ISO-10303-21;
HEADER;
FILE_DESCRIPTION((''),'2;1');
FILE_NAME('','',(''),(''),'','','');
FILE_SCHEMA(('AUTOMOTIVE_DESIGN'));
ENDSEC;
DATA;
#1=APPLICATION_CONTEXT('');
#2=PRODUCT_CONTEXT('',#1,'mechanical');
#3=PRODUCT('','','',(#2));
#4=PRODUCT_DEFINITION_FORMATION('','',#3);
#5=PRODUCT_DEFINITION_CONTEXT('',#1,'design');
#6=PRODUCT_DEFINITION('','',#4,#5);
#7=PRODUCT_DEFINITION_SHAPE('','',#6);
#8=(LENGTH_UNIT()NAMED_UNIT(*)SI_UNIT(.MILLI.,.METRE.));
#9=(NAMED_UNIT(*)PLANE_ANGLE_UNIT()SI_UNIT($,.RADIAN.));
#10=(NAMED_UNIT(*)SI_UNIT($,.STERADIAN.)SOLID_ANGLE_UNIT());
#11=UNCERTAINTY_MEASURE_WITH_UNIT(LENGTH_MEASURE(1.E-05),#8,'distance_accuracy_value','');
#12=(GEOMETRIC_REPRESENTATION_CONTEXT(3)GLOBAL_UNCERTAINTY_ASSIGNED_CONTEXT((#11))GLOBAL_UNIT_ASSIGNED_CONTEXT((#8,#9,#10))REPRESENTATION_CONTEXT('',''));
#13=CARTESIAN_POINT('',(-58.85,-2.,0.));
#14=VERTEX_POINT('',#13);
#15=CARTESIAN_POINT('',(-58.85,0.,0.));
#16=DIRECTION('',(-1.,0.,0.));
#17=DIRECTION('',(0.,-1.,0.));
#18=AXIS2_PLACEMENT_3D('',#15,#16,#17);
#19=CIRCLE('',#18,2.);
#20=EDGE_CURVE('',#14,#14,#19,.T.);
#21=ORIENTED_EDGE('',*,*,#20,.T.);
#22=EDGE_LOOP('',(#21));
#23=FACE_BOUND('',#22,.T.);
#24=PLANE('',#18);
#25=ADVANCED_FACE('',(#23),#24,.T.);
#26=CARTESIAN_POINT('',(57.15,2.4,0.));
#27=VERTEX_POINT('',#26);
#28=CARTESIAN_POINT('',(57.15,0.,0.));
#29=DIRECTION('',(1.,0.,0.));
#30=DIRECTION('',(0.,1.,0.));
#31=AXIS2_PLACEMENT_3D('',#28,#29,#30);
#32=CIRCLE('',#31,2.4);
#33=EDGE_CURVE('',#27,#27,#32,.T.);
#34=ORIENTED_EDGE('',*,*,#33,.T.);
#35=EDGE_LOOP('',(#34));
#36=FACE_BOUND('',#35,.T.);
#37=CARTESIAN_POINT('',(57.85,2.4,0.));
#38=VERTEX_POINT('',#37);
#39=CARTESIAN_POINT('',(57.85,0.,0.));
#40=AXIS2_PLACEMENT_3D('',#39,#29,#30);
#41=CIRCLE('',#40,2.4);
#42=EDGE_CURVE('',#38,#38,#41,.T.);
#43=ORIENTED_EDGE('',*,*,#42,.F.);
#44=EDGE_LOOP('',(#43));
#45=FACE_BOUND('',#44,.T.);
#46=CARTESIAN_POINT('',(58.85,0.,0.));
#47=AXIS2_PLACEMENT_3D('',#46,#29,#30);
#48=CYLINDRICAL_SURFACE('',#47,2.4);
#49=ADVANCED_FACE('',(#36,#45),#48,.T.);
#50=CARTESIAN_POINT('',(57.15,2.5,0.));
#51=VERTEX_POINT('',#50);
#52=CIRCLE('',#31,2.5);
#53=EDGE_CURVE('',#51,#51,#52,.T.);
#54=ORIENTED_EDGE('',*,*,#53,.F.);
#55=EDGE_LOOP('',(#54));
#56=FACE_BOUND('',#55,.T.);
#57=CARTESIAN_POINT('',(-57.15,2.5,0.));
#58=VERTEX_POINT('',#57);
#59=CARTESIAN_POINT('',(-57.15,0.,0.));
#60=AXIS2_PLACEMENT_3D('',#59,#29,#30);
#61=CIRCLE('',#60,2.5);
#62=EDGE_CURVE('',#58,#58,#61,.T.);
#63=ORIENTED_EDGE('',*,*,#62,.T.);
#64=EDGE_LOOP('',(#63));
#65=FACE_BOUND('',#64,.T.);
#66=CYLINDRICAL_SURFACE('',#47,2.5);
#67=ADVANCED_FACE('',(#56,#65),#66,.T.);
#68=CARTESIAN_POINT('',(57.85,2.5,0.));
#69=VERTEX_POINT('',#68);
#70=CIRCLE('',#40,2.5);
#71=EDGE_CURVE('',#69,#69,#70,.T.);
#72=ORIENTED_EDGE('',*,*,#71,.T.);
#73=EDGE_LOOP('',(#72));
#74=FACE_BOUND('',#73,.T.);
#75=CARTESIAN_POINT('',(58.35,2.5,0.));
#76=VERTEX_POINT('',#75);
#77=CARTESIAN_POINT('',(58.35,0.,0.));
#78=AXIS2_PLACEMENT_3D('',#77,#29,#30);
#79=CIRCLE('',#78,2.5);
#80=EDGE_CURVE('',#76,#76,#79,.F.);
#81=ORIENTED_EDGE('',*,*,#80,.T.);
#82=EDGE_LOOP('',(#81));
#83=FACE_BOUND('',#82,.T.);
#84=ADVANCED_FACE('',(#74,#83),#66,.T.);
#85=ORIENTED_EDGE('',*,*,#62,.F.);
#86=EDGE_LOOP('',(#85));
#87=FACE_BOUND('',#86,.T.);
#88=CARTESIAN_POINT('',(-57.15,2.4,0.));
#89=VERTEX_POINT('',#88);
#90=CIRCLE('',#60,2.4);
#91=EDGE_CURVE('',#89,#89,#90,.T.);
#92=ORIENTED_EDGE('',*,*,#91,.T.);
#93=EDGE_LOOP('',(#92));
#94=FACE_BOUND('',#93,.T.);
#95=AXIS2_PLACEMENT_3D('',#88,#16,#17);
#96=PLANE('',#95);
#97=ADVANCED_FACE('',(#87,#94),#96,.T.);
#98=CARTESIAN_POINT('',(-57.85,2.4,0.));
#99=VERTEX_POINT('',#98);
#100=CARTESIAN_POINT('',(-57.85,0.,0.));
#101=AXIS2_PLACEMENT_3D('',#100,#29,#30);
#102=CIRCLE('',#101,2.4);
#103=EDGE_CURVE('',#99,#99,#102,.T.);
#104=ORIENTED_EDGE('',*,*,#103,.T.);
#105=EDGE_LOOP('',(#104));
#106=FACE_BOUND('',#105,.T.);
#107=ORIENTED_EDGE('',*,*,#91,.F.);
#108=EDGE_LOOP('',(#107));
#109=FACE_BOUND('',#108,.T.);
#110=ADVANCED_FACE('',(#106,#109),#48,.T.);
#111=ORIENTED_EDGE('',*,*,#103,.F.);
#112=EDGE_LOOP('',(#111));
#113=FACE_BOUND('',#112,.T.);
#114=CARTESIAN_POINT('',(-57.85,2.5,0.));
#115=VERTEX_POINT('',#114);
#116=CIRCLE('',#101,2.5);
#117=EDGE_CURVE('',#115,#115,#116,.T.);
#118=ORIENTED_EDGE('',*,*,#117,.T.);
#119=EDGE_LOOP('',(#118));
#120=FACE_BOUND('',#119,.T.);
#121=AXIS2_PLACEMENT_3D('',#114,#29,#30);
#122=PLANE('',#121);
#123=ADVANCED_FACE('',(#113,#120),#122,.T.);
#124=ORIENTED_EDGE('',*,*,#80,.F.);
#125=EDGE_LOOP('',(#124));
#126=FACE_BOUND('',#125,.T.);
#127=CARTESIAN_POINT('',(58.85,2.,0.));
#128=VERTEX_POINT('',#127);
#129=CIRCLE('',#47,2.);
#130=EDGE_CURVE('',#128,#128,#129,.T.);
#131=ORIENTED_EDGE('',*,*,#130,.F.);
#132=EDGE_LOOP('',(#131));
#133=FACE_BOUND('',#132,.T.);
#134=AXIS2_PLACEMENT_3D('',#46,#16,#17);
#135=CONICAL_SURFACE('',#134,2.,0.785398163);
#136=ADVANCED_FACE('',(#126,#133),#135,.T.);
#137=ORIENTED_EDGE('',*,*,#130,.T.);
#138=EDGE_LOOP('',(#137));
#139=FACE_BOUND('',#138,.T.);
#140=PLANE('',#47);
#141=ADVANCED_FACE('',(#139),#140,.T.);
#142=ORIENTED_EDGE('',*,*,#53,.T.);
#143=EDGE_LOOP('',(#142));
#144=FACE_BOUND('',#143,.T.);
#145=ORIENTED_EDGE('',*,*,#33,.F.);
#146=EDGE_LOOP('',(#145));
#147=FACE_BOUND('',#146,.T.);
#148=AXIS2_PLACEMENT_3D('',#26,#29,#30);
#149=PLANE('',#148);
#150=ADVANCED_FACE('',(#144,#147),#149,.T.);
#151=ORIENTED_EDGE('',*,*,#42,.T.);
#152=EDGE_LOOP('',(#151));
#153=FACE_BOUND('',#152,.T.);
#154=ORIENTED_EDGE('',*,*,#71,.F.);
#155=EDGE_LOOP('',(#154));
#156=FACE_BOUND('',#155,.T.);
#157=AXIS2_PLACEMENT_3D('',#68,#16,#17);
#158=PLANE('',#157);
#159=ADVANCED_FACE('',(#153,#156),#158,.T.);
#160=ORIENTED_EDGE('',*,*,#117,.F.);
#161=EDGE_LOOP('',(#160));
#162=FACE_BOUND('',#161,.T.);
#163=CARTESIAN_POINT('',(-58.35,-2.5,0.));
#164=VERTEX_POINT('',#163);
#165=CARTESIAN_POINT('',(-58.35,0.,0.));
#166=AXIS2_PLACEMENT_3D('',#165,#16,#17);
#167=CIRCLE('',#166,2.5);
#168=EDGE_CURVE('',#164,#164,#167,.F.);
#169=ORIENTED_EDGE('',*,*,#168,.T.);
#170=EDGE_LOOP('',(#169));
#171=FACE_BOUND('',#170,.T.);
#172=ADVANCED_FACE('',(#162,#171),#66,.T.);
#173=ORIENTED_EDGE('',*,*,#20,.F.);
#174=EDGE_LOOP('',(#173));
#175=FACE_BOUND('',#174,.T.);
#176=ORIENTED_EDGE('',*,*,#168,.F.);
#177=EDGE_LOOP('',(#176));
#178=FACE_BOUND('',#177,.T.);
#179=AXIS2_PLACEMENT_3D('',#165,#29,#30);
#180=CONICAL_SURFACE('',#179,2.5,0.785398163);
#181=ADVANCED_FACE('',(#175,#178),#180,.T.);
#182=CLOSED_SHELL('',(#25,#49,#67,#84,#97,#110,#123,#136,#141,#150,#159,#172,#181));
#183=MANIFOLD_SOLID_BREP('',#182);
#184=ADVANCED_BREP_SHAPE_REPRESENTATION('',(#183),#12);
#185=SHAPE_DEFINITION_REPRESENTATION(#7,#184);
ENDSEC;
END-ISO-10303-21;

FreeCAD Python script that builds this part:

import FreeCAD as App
import Part
import Sketcher


def edges_at(feature, points):
    """Names of the edges that pass closest to the given points."""
    edges = feature.Shape.Edges
    near = lambda p: min(range(len(edges)), key=lambda i: edges[i].distToShape(Part.Vertex(*p))[0])
    return sorted({f"Edge{near(p) + 1}" for p in points})

doc = App.newDocument("Part")
body = doc.addObject("PartDesign::Body", "Body")

# Sketch on XY plane
sketch1 = body.newObject("Sketcher::SketchObject", "Sketch")
sketch1.AttachmentSupport = (doc.getObject("XY_Plane"), [""])
sketch1.MapMode = "FlatFace"
sketch1.addGeometry(Part.LineSegment(App.Vector(58.85, 0, 0), App.Vector(58.85, 2.5, 0)), False)
sketch1.addGeometry(Part.LineSegment(App.Vector(58.85, 2.5, 0), App.Vector(57.85, 2.5, 0)), False)
sketch1.addGeometry(Part.LineSegment(App.Vector(57.85, 2.5, 0), App.Vector(57.85, 2.4, 0)), False)
sketch1.addGeometry(Part.LineSegment(App.Vector(57.85, 2.4, 0), App.Vector(57.15, 2.4, 0)), False)
sketch1.addGeometry(Part.LineSegment(App.Vector(57.15, 2.4, 0), App.Vector(57.15, 2.5, 0)), False)
sketch1.addGeometry(Part.LineSegment(App.Vector(57.15, 2.5, 0), App.Vector(-57.15, 2.5, 0)), False)
sketch1.addGeometry(Part.LineSegment(App.Vector(-57.15, 2.5, 0), App.Vector(-57.15, 2.4, 0)), False)
sketch1.addGeometry(Part.LineSegment(App.Vector(-57.15, 2.4, 0), App.Vector(-57.85, 2.4, 0)), False)
sketch1.addGeometry(Part.LineSegment(App.Vector(-57.85, 2.4, 0), App.Vector(-57.85, 2.5, 0)), False)
sketch1.addGeometry(Part.LineSegment(App.Vector(-57.85, 2.5, 0), App.Vector(-58.85, 2.5, 0)), False)
sketch1.addGeometry(Part.LineSegment(App.Vector(-58.85, 2.5, 0), App.Vector(-58.85, 0, 0)), False)
sketch1.addGeometry(Part.LineSegment(App.Vector(-58.85, 0, 0), App.Vector(58.85, 0, 0)), False)
sketch1.addConstraint(Sketcher.Constraint("Coincident", 0, 2, 1, 1))
sketch1.addConstraint(Sketcher.Constraint("Coincident", 1, 2, 2, 1))
sketch1.addConstraint(Sketcher.Constraint("Coincident", 2, 2, 3, 1))
sketch1.addConstraint(Sketcher.Constraint("Coincident", 3, 2, 4, 1))
sketch1.addConstraint(Sketcher.Constraint("Coincident", 4, 2, 5, 1))
sketch1.addConstraint(Sketcher.Constraint("Coincident", 5, 2, 6, 1))
sketch1.addConstraint(Sketcher.Constraint("Coincident", 6, 2, 7, 1))
sketch1.addConstraint(Sketcher.Constraint("Coincident", 7, 2, 8, 1))
sketch1.addConstraint(Sketcher.Constraint("Coincident", 8, 2, 9, 1))
sketch1.addConstraint(Sketcher.Constraint("Coincident", 9, 2, 10, 1))
sketch1.addConstraint(Sketcher.Constraint("Coincident", 10, 2, 11, 1))
sketch1.addConstraint(Sketcher.Constraint("Coincident", 11, 2, 0, 1))
sketch1.addConstraint(Sketcher.Constraint("Vertical", 0))
sketch1.addConstraint(Sketcher.Constraint("Horizontal", 1))
sketch1.addConstraint(Sketcher.Constraint("Vertical", 2))
sketch1.addConstraint(Sketcher.Constraint("Horizontal", 3))
sketch1.addConstraint(Sketcher.Constraint("Vertical", 4))
sketch1.addConstraint(Sketcher.Constraint("Horizontal", 5))
sketch1.addConstraint(Sketcher.Constraint("Vertical", 6))
sketch1.addConstraint(Sketcher.Constraint("Horizontal", 7))
sketch1.addConstraint(Sketcher.Constraint("Vertical", 8))
sketch1.addConstraint(Sketcher.Constraint("Horizontal", 9))
sketch1.addConstraint(Sketcher.Constraint("Vertical", 10))
sketch1.addConstraint(Sketcher.Constraint("Horizontal", 11))
sketch1.addConstraint(Sketcher.Constraint("Symmetric", 10, 2, 11, 2, -1, 1))
sketch1.addConstraint(Sketcher.Constraint("Symmetric", 3, 2, 6, 2, -2))
sketch1.addConstraint(Sketcher.Constraint("Symmetric", 1, 2, 8, 2, -2))
sketch1.addConstraint(Sketcher.Constraint("Horizontal", 1, 2, 4, 2))
sketch1.addConstraint(Sketcher.Constraint("DistanceX", 1, 2, 1, 1, 1.0))
sketch1.addConstraint(Sketcher.Constraint("DistanceX", 3, 2, 3, 1, 0.7))
sketch1.addConstraint(Sketcher.Constraint("DistanceX", 5, 2, 5, 1, 114.3))
sketch1.addConstraint(Sketcher.Constraint("DistanceY", 0, 1, 0, 2, 2.5))
sketch1.addConstraint(Sketcher.Constraint("DistanceY", 2, 2, 2, 1, 0.1))
revolution = body.newObject("PartDesign::Revolution", "Revolution")
revolution.Profile = sketch1
revolution.ReferenceAxis = (sketch1, ["H_Axis"])
revolution.Angle = 360
doc.recompute()

chamfer = body.newObject("PartDesign::Chamfer", "Chamfer")
chamfer.Base = (revolution, edges_at(revolution, [(-58.85, -2.5, 0), (58.85, -2.5, 0)]))
chamfer.Size = 0.5

doc.recompute()
